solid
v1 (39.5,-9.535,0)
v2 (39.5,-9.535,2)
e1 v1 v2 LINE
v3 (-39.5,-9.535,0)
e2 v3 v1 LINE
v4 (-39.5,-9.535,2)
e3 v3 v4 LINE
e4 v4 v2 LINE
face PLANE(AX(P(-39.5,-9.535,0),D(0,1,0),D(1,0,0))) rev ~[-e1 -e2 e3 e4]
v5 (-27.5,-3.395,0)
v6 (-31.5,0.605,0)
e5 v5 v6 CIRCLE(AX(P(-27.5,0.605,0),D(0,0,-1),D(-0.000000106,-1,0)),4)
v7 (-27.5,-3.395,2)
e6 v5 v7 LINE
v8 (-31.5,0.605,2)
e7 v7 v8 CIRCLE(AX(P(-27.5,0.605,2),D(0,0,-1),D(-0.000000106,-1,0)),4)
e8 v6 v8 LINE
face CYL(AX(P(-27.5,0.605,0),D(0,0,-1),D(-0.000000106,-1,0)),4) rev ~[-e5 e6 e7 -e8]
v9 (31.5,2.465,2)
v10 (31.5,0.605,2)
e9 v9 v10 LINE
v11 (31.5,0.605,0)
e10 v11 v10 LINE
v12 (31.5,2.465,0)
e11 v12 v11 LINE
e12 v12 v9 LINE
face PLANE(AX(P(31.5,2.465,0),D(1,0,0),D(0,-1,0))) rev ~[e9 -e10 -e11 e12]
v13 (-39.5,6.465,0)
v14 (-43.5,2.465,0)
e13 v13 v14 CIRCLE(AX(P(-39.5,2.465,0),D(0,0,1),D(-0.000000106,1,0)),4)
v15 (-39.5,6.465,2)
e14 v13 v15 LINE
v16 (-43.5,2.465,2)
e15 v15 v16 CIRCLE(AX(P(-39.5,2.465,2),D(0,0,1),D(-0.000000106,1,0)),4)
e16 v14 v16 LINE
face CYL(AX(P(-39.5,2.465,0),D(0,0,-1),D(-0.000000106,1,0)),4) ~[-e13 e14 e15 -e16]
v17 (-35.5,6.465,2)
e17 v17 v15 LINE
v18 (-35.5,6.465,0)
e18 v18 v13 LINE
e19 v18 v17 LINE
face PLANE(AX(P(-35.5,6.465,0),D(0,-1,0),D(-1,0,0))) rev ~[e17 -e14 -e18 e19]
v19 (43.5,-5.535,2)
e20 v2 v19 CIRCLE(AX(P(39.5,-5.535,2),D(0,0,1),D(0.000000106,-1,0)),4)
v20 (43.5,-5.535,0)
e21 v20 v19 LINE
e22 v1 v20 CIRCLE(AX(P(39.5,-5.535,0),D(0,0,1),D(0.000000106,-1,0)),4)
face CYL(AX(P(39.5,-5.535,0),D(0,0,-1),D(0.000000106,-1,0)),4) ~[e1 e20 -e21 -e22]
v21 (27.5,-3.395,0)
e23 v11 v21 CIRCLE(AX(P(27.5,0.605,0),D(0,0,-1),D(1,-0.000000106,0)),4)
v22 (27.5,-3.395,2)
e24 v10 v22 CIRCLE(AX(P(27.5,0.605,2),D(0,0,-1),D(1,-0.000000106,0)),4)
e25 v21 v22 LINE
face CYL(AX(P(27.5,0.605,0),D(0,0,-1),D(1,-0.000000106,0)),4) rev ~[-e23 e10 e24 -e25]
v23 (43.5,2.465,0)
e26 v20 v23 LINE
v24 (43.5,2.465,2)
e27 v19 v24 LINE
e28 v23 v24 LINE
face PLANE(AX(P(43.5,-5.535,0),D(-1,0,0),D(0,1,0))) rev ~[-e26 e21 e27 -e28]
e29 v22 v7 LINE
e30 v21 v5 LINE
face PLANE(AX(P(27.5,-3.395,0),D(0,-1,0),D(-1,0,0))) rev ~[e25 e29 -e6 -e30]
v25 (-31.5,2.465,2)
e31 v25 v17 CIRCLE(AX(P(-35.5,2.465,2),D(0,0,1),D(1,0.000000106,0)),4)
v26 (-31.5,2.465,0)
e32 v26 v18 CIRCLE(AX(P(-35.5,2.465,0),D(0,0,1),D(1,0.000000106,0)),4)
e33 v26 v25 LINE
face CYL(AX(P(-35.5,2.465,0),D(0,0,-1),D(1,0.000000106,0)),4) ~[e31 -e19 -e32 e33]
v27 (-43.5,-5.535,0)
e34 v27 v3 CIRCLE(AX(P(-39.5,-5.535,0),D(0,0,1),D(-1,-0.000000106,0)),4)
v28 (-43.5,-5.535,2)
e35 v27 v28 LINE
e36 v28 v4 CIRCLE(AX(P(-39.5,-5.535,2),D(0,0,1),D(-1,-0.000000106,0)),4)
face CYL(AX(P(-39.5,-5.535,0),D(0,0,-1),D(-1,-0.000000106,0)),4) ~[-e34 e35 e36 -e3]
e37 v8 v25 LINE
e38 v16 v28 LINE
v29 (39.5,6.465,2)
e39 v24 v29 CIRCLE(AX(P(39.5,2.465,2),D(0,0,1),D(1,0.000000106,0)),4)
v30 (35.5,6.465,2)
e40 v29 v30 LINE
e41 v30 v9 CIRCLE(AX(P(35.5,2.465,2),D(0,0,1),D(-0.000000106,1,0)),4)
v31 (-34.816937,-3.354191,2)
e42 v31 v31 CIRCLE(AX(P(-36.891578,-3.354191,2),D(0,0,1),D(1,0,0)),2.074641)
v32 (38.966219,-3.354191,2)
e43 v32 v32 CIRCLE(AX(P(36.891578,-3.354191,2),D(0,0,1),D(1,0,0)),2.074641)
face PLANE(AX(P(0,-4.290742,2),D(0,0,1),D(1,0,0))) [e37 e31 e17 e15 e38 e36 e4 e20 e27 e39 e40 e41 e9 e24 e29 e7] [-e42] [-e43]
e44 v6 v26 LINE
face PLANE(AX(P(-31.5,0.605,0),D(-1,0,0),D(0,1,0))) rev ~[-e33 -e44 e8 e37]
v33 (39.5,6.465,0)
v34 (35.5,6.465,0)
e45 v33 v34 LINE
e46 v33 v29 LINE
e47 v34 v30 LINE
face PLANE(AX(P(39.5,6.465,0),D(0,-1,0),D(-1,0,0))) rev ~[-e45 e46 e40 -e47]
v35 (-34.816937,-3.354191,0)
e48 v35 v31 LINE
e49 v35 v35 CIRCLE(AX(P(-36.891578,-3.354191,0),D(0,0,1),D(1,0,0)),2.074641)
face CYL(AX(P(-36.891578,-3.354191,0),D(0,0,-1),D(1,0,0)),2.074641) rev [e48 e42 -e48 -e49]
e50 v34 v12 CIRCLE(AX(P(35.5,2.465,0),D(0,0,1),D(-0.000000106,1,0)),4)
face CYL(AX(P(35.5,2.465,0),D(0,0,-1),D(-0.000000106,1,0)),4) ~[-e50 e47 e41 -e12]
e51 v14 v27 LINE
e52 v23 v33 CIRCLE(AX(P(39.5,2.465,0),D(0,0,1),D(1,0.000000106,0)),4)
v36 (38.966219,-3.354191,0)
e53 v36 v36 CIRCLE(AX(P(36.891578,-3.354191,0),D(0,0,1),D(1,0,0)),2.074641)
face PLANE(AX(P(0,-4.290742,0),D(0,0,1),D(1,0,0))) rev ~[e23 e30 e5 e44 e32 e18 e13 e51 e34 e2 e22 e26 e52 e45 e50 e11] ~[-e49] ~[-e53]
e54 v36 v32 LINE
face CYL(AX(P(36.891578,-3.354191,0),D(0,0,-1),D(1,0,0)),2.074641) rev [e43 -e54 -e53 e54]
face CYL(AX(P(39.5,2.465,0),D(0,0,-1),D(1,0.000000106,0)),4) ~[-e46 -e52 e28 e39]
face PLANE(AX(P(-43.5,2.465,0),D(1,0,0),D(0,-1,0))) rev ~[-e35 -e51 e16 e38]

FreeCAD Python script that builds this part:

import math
import FreeCAD as App
import Part
import Sketcher
Q = App.Units.Quantity

doc = App.newDocument("Part")
body = doc.addObject("PartDesign::Body", "Body")

# Sketch on XY plane
sketch1 = doc.addObject("Sketcher::SketchObject", "Sketch")
body.addObject(sketch1)
sketch1.AttachmentSupport = (doc.XY_Plane, [""])
sketch1.MapMode = "FlatFace"
sketch1.addGeometry(Part.LineSegment(App.Vector(-39.5, -9.535, 0), App.Vector(39.5, -9.535, 0)), False)
sketch1.addGeometry(Part.ArcOfCircle(Part.Circle(App.Vector(39.5, -5.535, 0), App.Vector(0, 0, 1), 4), math.radians(-89.999994), math.radians(-0.000006)), False)
sketch1.addGeometry(Part.LineSegment(App.Vector(43.5, -5.535, 0), App.Vector(43.5, 2.465, 0)), False)
sketch1.addGeometry(Part.ArcOfCircle(Part.Circle(App.Vector(39.5, 2.465, 0), App.Vector(0, 0, 1), 4), math.radians(0.000006), math.radians(89.999994)), False)
sketch1.addGeometry(Part.LineSegment(App.Vector(39.5, 6.465, 0), App.Vector(35.5, 6.465, 0)), False)
sketch1.addGeometry(Part.ArcOfCircle(Part.Circle(App.Vector(35.5, 2.465, 0), App.Vector(0, 0, 1), 4), math.radians(90.000006), math.radians(179.999994)), False)
sketch1.addGeometry(Part.LineSegment(App.Vector(31.5, 2.465, 0), App.Vector(31.5, 0.605, 0)), False)
sketch1.addGeometry(Part.ArcOfCircle(Part.Circle(App.Vector(27.5, 0.605, 0), App.Vector(0, 0, 1), 4), math.radians(-89.999994), math.radians(-0.000006)), False)
sketch1.addGeometry(Part.LineSegment(App.Vector(27.5, -3.395, 0), App.Vector(-27.5, -3.395, 0)), False)
sketch1.addGeometry(Part.ArcOfCircle(Part.Circle(App.Vector(-27.5, 0.605, 0), App.Vector(0, 0, 1), 4), math.radians(-179.999994), math.radians(-90.000006)), False)
sketch1.addGeometry(Part.LineSegment(App.Vector(-31.5, 0.605, 0), App.Vector(-31.5, 2.465, 0)), False)
sketch1.addGeometry(Part.ArcOfCircle(Part.Circle(App.Vector(-35.5, 2.465, 0), App.Vector(0, 0, 1), 4), math.radians(0.000006), math.radians(89.999994)), False)
sketch1.addGeometry(Part.LineSegment(App.Vector(-35.5, 6.465, 0), App.Vector(-39.5, 6.465, 0)), False)
sketch1.addGeometry(Part.ArcOfCircle(Part.Circle(App.Vector(-39.5, 2.465, 0), App.Vector(0, 0, 1), 4), math.radians(90.000006), math.radians(179.999994)), False)
sketch1.addGeometry(Part.LineSegment(App.Vector(-43.5, 2.465, 0), App.Vector(-43.5, -5.535, 0)), False)
sketch1.addGeometry(Part.ArcOfCircle(Part.Circle(App.Vector(-39.5, -5.535, 0), App.Vector(0, 0, 1), 4), math.radians(-179.999994), math.radians(-90.000006)), False)
sketch1.addGeometry(Part.Circle(App.Vector(-36.891578, -3.354191, 0), App.Vector(0, 0, 1), 2.074641), False)
sketch1.addGeometry(Part.Circle(App.Vector(36.891578, -3.354191, 0), App.Vector(0, 0, 1), 2.074641), False)
sketch1.addConstraint(Sketcher.Constraint("Tangent", 0, 2, 1, 1))
sketch1.addConstraint(Sketcher.Constraint("Tangent", 1, 2, 2, 1))
sketch1.addConstraint(Sketcher.Constraint("Tangent", 2, 2, 3, 1))
sketch1.addConstraint(Sketcher.Constraint("Tangent", 3, 2, 4, 1))
sketch1.addConstraint(Sketcher.Constraint("Tangent", 4, 2, 5, 1))
sketch1.addConstraint(Sketcher.Constraint("Tangent", 5, 2, 6, 1))
sketch1.addConstraint(Sketcher.Constraint("Tangent", 6, 2, 7, 2))
sketch1.addConstraint(Sketcher.Constraint("Tangent", 7, 1, 8, 1))
sketch1.addConstraint(Sketcher.Constraint("Tangent", 8, 2, 9, 2))
sketch1.addConstraint(Sketcher.Constraint("Tangent", 9, 1, 10, 1))
sketch1.addConstraint(Sketcher.Constraint("Tangent", 10, 2, 11, 1))
sketch1.addConstraint(Sketcher.Constraint("Tangent", 11, 2, 12, 1))
sketch1.addConstraint(Sketcher.Constraint("Tangent", 12, 2, 13, 1))
sketch1.addConstraint(Sketcher.Constraint("Tangent", 13, 2, 14, 1))
sketch1.addConstraint(Sketcher.Constraint("Tangent", 14, 2, 15, 1))
sketch1.addConstraint(Sketcher.Constraint("Tangent", 15, 2, 0, 1))
sketch1.addConstraint(Sketcher.Constraint("Horizontal", 0))
sketch1.addConstraint(Sketcher.Constraint("Vertical", 2))
sketch1.addConstraint(Sketcher.Constraint("Horizontal", 4))
sketch1.addConstraint(Sketcher.Constraint("Vertical", 6))
sketch1.addConstraint(Sketcher.Constraint("Horizontal", 8))
sketch1.addConstraint(Sketcher.Constraint("Vertical", 10))
sketch1.addConstraint(Sketcher.Constraint("Horizontal", 12))
sketch1.addConstraint(Sketcher.Constraint("Vertical", 14))
sketch1.addConstraint(Sketcher.Constraint("Equal", 1, 3))
sketch1.addConstraint(Sketcher.Constraint("Equal", 3, 5))
sketch1.addConstraint(Sketcher.Constraint("Equal", 5, 7))
sketch1.addConstraint(Sketcher.Constraint("Equal", 7, 9))
sketch1.addConstraint(Sketcher.Constraint("Equal", 9, 11))
sketch1.addConstraint(Sketcher.Constraint("Equal", 11, 13))
sketch1.addConstraint(Sketcher.Constraint("Equal", 13, 15))
sketch1.addConstraint(Sketcher.Constraint("Equal", 16, 17))
sketch1.addConstraint(Sketcher.Constraint("Symmetric", 5, 3, 11, 3, -2))
sketch1.addConstraint(Sketcher.Constraint("Symmetric", 16, 3, 17, 3, -2))
sketch1.addConstraint(Sketcher.Constraint("Equal", 4, 12))
sketch1.addConstraint(Sketcher.Constraint("Radius", 1, Q("4 mm")))
sketch1.addConstraint(Sketcher.Constraint("DistanceX", 0, 1, 0, 2, Q("79 mm")))
sketch1.addConstraint(Sketcher.Constraint("DistanceX", 4, 2, 4, 1, Q("4 mm")))
sketch1.addConstraint(Sketcher.Constraint("DistanceY", 2, 1, 2, 2, Q("8 mm")))
sketch1.addConstraint(Sketcher.Constraint("DistanceY", 6, 2, 6, 1, Q("1.86 mm")))
sketch1.addConstraint(Sketcher.Constraint("Diameter", 16, Q("4.149282 mm")))
sketch1.addConstraint(Sketcher.Constraint("DistanceY", 1, 3, -1, 1, Q("5.535 mm")))
sketch1.addConstraint(Sketcher.Constraint("DistanceX", 16, 3, -1, 1, Q("36.891578 mm")))
sketch1.addConstraint(Sketcher.Constraint("DistanceY", 16, 3, -1, 1, Q("3.354191 mm")))
pad1 = doc.addObject("PartDesign::Pad", "Pad")
body.addObject(pad1)
pad1.Profile = sketch1
pad1.Length = 2

doc.recompute()
